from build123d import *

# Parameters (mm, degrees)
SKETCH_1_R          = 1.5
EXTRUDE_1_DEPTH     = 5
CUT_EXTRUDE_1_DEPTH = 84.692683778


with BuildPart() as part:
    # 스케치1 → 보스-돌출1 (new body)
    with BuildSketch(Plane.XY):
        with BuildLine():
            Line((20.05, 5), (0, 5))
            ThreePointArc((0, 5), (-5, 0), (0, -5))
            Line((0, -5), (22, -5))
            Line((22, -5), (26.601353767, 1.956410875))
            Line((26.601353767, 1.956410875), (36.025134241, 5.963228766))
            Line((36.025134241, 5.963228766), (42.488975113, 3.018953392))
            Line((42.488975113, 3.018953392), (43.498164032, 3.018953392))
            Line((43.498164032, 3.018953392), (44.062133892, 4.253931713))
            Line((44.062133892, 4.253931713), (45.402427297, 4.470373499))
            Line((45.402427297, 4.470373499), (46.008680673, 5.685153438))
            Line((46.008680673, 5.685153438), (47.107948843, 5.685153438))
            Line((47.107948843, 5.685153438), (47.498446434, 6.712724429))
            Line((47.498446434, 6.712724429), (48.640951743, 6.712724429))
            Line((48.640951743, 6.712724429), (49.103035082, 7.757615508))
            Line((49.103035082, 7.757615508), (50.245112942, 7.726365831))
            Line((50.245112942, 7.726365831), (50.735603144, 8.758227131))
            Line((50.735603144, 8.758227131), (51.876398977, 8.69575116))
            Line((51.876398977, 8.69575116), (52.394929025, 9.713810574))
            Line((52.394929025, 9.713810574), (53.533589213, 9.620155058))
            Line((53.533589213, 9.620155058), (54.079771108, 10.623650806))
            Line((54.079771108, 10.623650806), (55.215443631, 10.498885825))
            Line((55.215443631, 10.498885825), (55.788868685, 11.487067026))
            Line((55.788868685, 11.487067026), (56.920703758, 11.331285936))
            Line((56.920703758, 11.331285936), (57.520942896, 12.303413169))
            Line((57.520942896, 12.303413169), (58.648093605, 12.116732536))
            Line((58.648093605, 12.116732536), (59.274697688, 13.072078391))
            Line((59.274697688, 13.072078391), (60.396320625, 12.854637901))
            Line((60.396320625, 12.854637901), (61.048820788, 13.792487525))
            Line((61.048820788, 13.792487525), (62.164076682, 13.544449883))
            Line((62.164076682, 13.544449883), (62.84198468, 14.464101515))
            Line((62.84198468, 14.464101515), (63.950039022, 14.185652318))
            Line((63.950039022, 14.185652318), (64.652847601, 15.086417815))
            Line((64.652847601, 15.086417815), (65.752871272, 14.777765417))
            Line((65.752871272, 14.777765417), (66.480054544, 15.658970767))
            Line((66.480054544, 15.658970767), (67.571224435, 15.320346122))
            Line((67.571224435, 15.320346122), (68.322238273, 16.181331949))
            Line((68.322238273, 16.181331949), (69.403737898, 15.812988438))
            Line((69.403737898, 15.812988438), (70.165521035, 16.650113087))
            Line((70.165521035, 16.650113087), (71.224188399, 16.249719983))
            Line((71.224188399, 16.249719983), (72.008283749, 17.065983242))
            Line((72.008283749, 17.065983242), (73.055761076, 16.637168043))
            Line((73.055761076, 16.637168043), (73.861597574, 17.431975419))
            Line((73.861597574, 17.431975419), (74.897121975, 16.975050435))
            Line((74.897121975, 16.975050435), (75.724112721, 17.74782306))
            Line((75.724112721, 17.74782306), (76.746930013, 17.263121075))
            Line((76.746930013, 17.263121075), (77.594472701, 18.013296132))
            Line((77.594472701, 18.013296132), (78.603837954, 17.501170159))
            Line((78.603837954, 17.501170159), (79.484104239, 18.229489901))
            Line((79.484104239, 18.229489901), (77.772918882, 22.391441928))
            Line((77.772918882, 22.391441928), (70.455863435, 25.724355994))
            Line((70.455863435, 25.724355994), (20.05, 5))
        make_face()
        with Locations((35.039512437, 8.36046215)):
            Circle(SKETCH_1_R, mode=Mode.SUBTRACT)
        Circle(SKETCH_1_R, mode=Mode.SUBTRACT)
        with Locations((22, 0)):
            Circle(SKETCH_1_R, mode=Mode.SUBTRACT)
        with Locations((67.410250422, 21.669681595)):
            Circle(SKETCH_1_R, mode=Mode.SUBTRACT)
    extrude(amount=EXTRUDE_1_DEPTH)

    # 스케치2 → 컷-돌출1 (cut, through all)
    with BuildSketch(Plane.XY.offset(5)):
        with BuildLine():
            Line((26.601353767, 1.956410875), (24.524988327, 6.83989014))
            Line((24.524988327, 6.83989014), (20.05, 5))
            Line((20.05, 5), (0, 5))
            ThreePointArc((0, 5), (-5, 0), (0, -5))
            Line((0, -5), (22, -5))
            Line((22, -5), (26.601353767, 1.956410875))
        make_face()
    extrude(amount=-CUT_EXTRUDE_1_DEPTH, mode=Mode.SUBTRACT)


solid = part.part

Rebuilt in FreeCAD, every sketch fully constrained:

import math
import FreeCAD as App
import Part
import Sketcher
Q = App.Units.Quantity

doc = App.newDocument("Part")
body = doc.addObject("PartDesign::Body", "Body")

# Sketch on XY plane
sketch1 = doc.addObject("Sketcher::SketchObject", "Sketch")
body.addObject(sketch1)
sketch1.AttachmentSupport = (doc.XY_Plane, [""])
sketch1.MapMode = "FlatFace"
sketch1.addGeometry(Part.LineSegment(App.Vector(20.05, 5, 0), App.Vector(0, 5, 0)), False)
sketch1.addGeometry(Part.ArcOfCircle(Part.Circle(App.Vector(0, 0, 0), App.Vector(0, 0, 1), 5), math.radians(90), math.radians(270)), False)
sketch1.addGeometry(Part.LineSegment(App.Vector(0, -5, 0), App.Vector(22, -5, 0)), False)
sketch1.addGeometry(Part.LineSegment(App.Vector(22, -5, 0), App.Vector(26.601354, 1.956411, 0)), False)
sketch1.addGeometry(Part.LineSegment(App.Vector(26.601354, 1.956411, 0), App.Vector(36.025134, 5.963229, 0)), False)
sketch1.addGeometry(Part.LineSegment(App.Vector(36.025134, 5.963229, 0), App.Vector(42.488975, 3.018953, 0)), False)
sketch1.addGeometry(Part.LineSegment(App.Vector(42.488975, 3.018953, 0), App.Vector(43.498164, 3.018953, 0)), False)
sketch1.addGeometry(Part.LineSegment(App.Vector(43.498164, 3.018953, 0), App.Vector(44.062134, 4.253932, 0)), False)
sketch1.addGeometry(Part.LineSegment(App.Vector(44.062134, 4.253932, 0), App.Vector(45.402427, 4.470373, 0)), False)
sketch1.addGeometry(Part.LineSegment(App.Vector(45.402427, 4.470373, 0), App.Vector(46.008681, 5.685153, 0)), False)
sketch1.addGeometry(Part.LineSegment(App.Vector(46.008681, 5.685153, 0), App.Vector(47.107949, 5.685153, 0)), False)
sketch1.addGeometry(Part.LineSegment(App.Vector(47.107949, 5.685153, 0), App.Vector(47.498446, 6.712724, 0)), False)
sketch1.addGeometry(Part.LineSegment(App.Vector(47.498446, 6.712724, 0), App.Vector(48.640952, 6.712724, 0)), False)
sketch1.addGeometry(Part.LineSegment(App.Vector(48.640952, 6.712724, 0), App.Vector(49.103035, 7.757616, 0)), False)
sketch1.addGeometry(Part.LineSegment(App.Vector(49.103035, 7.757616, 0), App.Vector(50.245113, 7.726366, 0)), False)
sketch1.addGeometry(Part.LineSegment(App.Vector(50.245113, 7.726366, 0), App.Vector(50.735603, 8.758227, 0)), False)
sketch1.addGeometry(Part.LineSegment(App.Vector(50.735603, 8.758227, 0), App.Vector(51.876399, 8.695751, 0)), False)
sketch1.addGeometry(Part.LineSegment(App.Vector(51.876399, 8.695751, 0), App.Vector(52.394929, 9.713811, 0)), False)
sketch1.addGeometry(Part.LineSegment(App.Vector(52.394929, 9.713811, 0), App.Vector(53.533589, 9.620155, 0)), False)
sketch1.addGeometry(Part.LineSegment(App.Vector(53.533589, 9.620155, 0), App.Vector(54.079771, 10.623651, 0)), False)
sketch1.addGeometry(Part.LineSegment(App.Vector(54.079771, 10.623651, 0), App.Vector(55.215444, 10.498886, 0)), False)
sketch1.addGeometry(Part.LineSegment(App.Vector(55.215444, 10.498886, 0), App.Vector(55.788869, 11.487067, 0)), False)
sketch1.addGeometry(Part.LineSegment(App.Vector(55.788869, 11.487067, 0), App.Vector(56.920704, 11.331286, 0)), False)
sketch1.addGeometry(Part.LineSegment(App.Vector(56.920704, 11.331286, 0), App.Vector(57.520943, 12.303413, 0)), False)
sketch1.addGeometry(Part.LineSegment(App.Vector(57.520943, 12.303413, 0), App.Vector(58.648094, 12.116733, 0)), False)
sketch1.addGeometry(Part.LineSegment(App.Vector(58.648094, 12.116733, 0), App.Vector(59.274698, 13.072078, 0)), False)
sketch1.addGeometry(Part.LineSegment(App.Vector(59.274698, 13.072078, 0), App.Vector(60.396321, 12.854638, 0)), False)
sketch1.addGeometry(Part.LineSegment(App.Vector(60.396321, 12.854638, 0), App.Vector(61.048821, 13.792488, 0)), False)
sketch1.addGeometry(Part.LineSegment(App.Vector(61.048821, 13.792488, 0), App.Vector(62.164077, 13.54445, 0)), False)
sketch1.addGeometry(Part.LineSegment(App.Vector(62.164077, 13.54445, 0), App.Vector(62.841985, 14.464102, 0)), False)
sketch1.addGeometry(Part.LineSegment(App.Vector(62.841985, 14.464102, 0), App.Vector(63.950039, 14.185652, 0)), False)
sketch1.addGeometry(Part.LineSegment(App.Vector(63.950039, 14.185652, 0), App.Vector(64.652848, 15.086418, 0)), False)
sketch1.addGeometry(Part.LineSegment(App.Vector(64.652848, 15.086418, 0), App.Vector(65.752871, 14.777765, 0)), False)
sketch1.addGeometry(Part.LineSegment(App.Vector(65.752871, 14.777765, 0), App.Vector(66.480055, 15.658971, 0)), False)
sketch1.addGeometry(Part.LineSegment(App.Vector(66.480055, 15.658971, 0), App.Vector(67.571224, 15.320346, 0)), False)
sketch1.addGeometry(Part.LineSegment(App.Vector(67.571224, 15.320346, 0), App.Vector(68.322238, 16.181332, 0)), False)
sketch1.addGeometry(Part.LineSegment(App.Vector(68.322238, 16.181332, 0), App.Vector(69.403738, 15.812988, 0)), False)
sketch1.addGeometry(Part.LineSegment(App.Vector(69.403738, 15.812988, 0), App.Vector(70.165521, 16.650113, 0)), False)
sketch1.addGeometry(Part.LineSegment(App.Vector(70.165521, 16.650113, 0), App.Vector(71.224188, 16.24972, 0)), False)
sketch1.addGeometry(Part.LineSegment(App.Vector(71.224188, 16.24972, 0), App.Vector(72.008284, 17.065983, 0)), False)
sketch1.addGeometry(Part.LineSegment(App.Vector(72.008284, 17.065983, 0), App.Vector(73.055761, 16.637168, 0)), False)
sketch1.addGeometry(Part.LineSegment(App.Vector(73.055761, 16.637168, 0), App.Vector(73.861598, 17.431975, 0)), False)
sketch1.addGeometry(Part.LineSegment(App.Vector(73.861598, 17.431975, 0), App.Vector(74.897122, 16.97505, 0)), False)
sketch1.addGeometry(Part.LineSegment(App.Vector(74.897122, 16.97505, 0), App.Vector(75.724113, 17.747823, 0)), False)
sketch1.addGeometry(Part.LineSegment(App.Vector(75.724113, 17.747823, 0), App.Vector(76.74693, 17.263121, 0)), False)
sketch1.addGeometry(Part.LineSegment(App.Vector(76.74693, 17.263121, 0), App.Vector(77.594473, 18.013296, 0)), False)
sketch1.addGeometry(Part.LineSegment(App.Vector(77.594473, 18.013296, 0), App.Vector(78.603838, 17.50117, 0)), False)
sketch1.addGeometry(Part.LineSegment(App.Vector(78.603838, 17.50117, 0), App.Vector(79.484104, 18.22949, 0)), False)
sketch1.addGeometry(Part.LineSegment(App.Vector(79.484104, 18.22949, 0), App.Vector(77.772919, 22.391442, 0)), False)
sketch1.addGeometry(Part.LineSegment(App.Vector(77.772919, 22.391442, 0), App.Vector(70.455863, 25.724356, 0)), False)
sketch1.addGeometry(Part.LineSegment(App.Vector(70.455863, 25.724356, 0), App.Vector(20.05, 5, 0)), False)
sketch1.addGeometry(Part.Circle(App.Vector(0, 0, 0), App.Vector(0, 0, 1), 1.5), False)
sketch1.addGeometry(Part.Circle(App.Vector(22, 0, 0), App.Vector(0, 0, 1), 1.5), False)
sketch1.addGeometry(Part.Circle(App.Vector(35.039512, 8.360462, 0), App.Vector(0, 0, 1), 1.5), False)
sketch1.addGeometry(Part.Circle(App.Vector(67.41025, 21.669682, 0), App.Vector(0, 0, 1), 1.5), False)
sketch1.addConstraint(Sketcher.Constraint("Tangent", 0, 2, 1, 1))
sketch1.addConstraint(Sketcher.Constraint("Tangent", 1, 2, 2, 1))
sketch1.addConstraint(Sketcher.Constraint("Coincident", 2, 2, 3, 1))
sketch1.addConstraint(Sketcher.Constraint("Coincident", 3, 2, 4, 1))
sketch1.addConstraint(Sketcher.Constraint("Coincident", 4, 2, 5, 1))
sketch1.addConstraint(Sketcher.Constraint("Coincident", 5, 2, 6, 1))
sketch1.addConstraint(Sketcher.Constraint("Coincident", 6, 2, 7, 1))
sketch1.addConstraint(Sketcher.Constraint("Coincident", 7, 2, 8, 1))
sketch1.addConstraint(Sketcher.Constraint("Coincident", 8, 2, 9, 1))
sketch1.addConstraint(Sketcher.Constraint("Coincident", 9, 2, 10, 1))
sketch1.addConstraint(Sketcher.Constraint("Coincident", 10, 2, 11, 1))
sketch1.addConstraint(Sketcher.Constraint("Coincident", 11, 2, 12, 1))
sketch1.addConstraint(Sketcher.Constraint("Coincident", 12, 2, 13, 1))
sketch1.addConstraint(Sketcher.Constraint("Coincident", 13, 2, 14, 1))
sketch1.addConstraint(Sketcher.Constraint("Coincident", 14, 2, 15, 1))
sketch1.addConstraint(Sketcher.Constraint("Coincident", 15, 2, 16, 1))
sketch1.addConstraint(Sketcher.Constraint("Coincident", 16, 2, 17, 1))
sketch1.addConstraint(Sketcher.Constraint("Coincident", 17, 2, 18, 1))
sketch1.addConstraint(Sketcher.Constraint("Coincident", 18, 2, 19, 1))
sketch1.addConstraint(Sketcher.Constraint("Coincident", 19, 2, 20, 1))
sketch1.addConstraint(Sketcher.Constraint("Coincident", 20, 2, 21, 1))
sketch1.addConstraint(Sketcher.Constraint("Coincident", 21, 2, 22, 1))
sketch1.addConstraint(Sketcher.Constraint("Coincident", 22, 2, 23, 1))
sketch1.addConstraint(Sketcher.Constraint("Coincident", 23, 2, 24, 1))
sketch1.addConstraint(Sketcher.Constraint("Coincident", 24, 2, 25, 1))
sketch1.addConstraint(Sketcher.Constraint("Coincident", 25, 2, 26, 1))
sketch1.addConstraint(Sketcher.Constraint("Coincident", 26, 2, 27, 1))
sketch1.addConstraint(Sketcher.Constraint("Coincident", 27, 2, 28, 1))
sketch1.addConstraint(Sketcher.Constraint("Coincident", 28, 2, 29, 1))
sketch1.addConstraint(Sketcher.Constraint("Coincident", 29, 2, 30, 1))
sketch1.addConstraint(Sketcher.Constraint("Coincident", 30, 2, 31, 1))
sketch1.addConstraint(Sketcher.Constraint("Coincident", 31, 2, 32, 1))
sketch1.addConstraint(Sketcher.Constraint("Coincident", 32, 2, 33, 1))
sketch1.addConstraint(Sketcher.Constraint("Coincident", 33, 2, 34, 1))
sketch1.addConstraint(Sketcher.Constraint("Coincident", 34, 2, 35, 1))
sketch1.addConstraint(Sketcher.Constraint("Coincident", 35, 2, 36, 1))
sketch1.addConstraint(Sketcher.Constraint("Coincident", 36, 2, 37, 1))
sketch1.addConstraint(Sketcher.Constraint("Coincident", 37, 2, 38, 1))
sketch1.addConstraint(Sketcher.Constraint("Coincident", 38, 2, 39, 1))
sketch1.addConstraint(Sketcher.Constraint("Coincident", 39, 2, 40, 1))
sketch1.addConstraint(Sketcher.Constraint("Coincident", 40, 2, 41, 1))
sketch1.addConstraint(Sketcher.Constraint("Coincident", 41, 2, 42, 1))
sketch1.addConstraint(Sketcher.Constraint("Coincident", 42, 2, 43, 1))
sketch1.addConstraint(Sketcher.Constraint("Coincident", 43, 2, 44, 1))
sketch1.addConstraint(Sketcher.Constraint("Coincident", 44, 2, 45, 1))
sketch1.addConstraint(Sketcher.Constraint("Coincident", 45, 2, 46, 1))
sketch1.addConstraint(Sketcher.Constraint("Coincident", 46, 2, 47, 1))
sketch1.addConstraint(Sketcher.Constraint("Coincident", 47, 2, 48, 1))
sketch1.addConstraint(Sketcher.Constraint("Coincident", 48, 2, 49, 1))
sketch1.addConstraint(Sketcher.Constraint("Coincident", 49, 2, 50, 1))
sketch1.addConstraint(Sketcher.Constraint("Coincident", 50, 2, 0, 1))
sketch1.addConstraint(Sketcher.Constraint("Horizontal", 0))
sketch1.addConstraint(Sketcher.Constraint("Horizontal", 2))
sketch1.addConstraint(Sketcher.Constraint("Horizontal", 6))
sketch1.addConstraint(Sketcher.Constraint("Horizontal", 10))
sketch1.addConstraint(Sketcher.Constraint("Horizontal", 12))
sketch1.addConstraint(Sketcher.Constraint("Coincident", 1, 3, -1, 1))
sketch1.addConstraint(Sketcher.Constraint("Coincident", 51, 3, -1, 1))
sketch1.addConstraint(Sketcher.Constraint("Equal", 51, 52))
sketch1.addConstraint(Sketcher.Constraint("Equal", 52, 53))
sketch1.addConstraint(Sketcher.Constraint("Equal", 53, 54))
sketch1.addConstraint(Sketcher.Constraint("PointOnObject", 52, 3, -1))
sketch1.addConstraint(Sketcher.Constraint("Parallel", 5, 49))
sketch1.addConstraint(Sketcher.Constraint("Perpendicular", 48, 50))
sketch1.addConstraint(Sketcher.Constraint("Vertical", 52, 3, 2, 2))
sketch1.addConstraint(Sketcher.Constraint("Equal", 7, 8))
sketch1.addConstraint(Sketcher.Constraint("Equal", 8, 9))
sketch1.addConstraint(Sketcher.Constraint("Equal", 13, 14))
sketch1.addConstraint(Sketcher.Constraint("Equal", 14, 15))
sketch1.addConstraint(Sketcher.Constraint("Equal", 15, 16))
sketch1.addConstraint(Sketcher.Constraint("Equal", 16, 17))
sketch1.addConstraint(Sketcher.Constraint("Equal", 17, 18))
sketch1.addConstraint(Sketcher.Constraint("Equal", 18, 19))
sketch1.addConstraint(Sketcher.Constraint("Equal", 19, 20))
sketch1.addConstraint(Sketcher.Constraint("Equal", 20, 21))
sketch1.addConstraint(Sketcher.Constraint("Equal", 21, 22))
sketch1.addConstraint(Sketcher.Constraint("Equal", 22, 23))
sketch1.addConstraint(Sketcher.Constraint("Equal", 23, 24))
sketch1.addConstraint(Sketcher.Constraint("Equal", 24, 25))
sketch1.addConstraint(Sketcher.Constraint("Equal", 25, 26))
sketch1.addConstraint(Sketcher.Constraint("Equal", 26, 27))
sketch1.addConstraint(Sketcher.Constraint("Equal", 27, 28))
sketch1.addConstraint(Sketcher.Constraint("Equal", 28, 29))
sketch1.addConstraint(Sketcher.Constraint("Equal", 29, 30))
sketch1.addConstraint(Sketcher.Constraint("Equal", 30, 31))
sketch1.addConstraint(Sketcher.Constraint("Equal", 31, 32))
sketch1.addConstraint(Sketcher.Constraint("Equal", 32, 33))
sketch1.addConstraint(Sketcher.Constraint("Equal", 33, 34))
sketch1.addConstraint(Sketcher.Constraint("Equal", 34, 35))
sketch1.addConstraint(Sketcher.Constraint("Equal", 35, 36))
sketch1.addConstraint(Sketcher.Constraint("Equal", 37, 38))
sketch1.addConstraint(Sketcher.Constraint("Equal", 38, 39))
sketch1.addConstraint(Sketcher.Constraint("Equal", 39, 40))
sketch1.addConstraint(Sketcher.Constraint("Equal", 40, 41))
sketch1.addConstraint(Sketcher.Constraint("Equal", 41, 42))
sketch1.addConstraint(Sketcher.Constraint("Equal", 42, 43))
sketch1.addConstraint(Sketcher.Constraint("Equal", 43, 44))
sketch1.addConstraint(Sketcher.Constraint("Equal", 44, 45))
sketch1.addConstraint(Sketcher.Constraint("Equal", 45, 46))
sketch1.addConstraint(Sketcher.Constraint("Equal", 36, 47))
sketch1.addConstraint(Sketcher.Constraint("Diameter", 51, 3.0))
sketch1.addConstraint(Sketcher.Constraint("Radius", 1, 5.0))
sketch1.addConstraint(Sketcher.Constraint("DistanceX", 2, 1, 2, 2, 22.0))
sketch1.addConstraint(Sketcher.Constraint("Distance", 48, 4.5))
sketch1.addConstraint(Sketcher.Constraint("Distance", 50, 54.5))
sketch1.addConstraint(Sketcher.Constraint("DistanceX", 0, 2, 0, 1, 20.05))
sketch1.addConstraint(Sketcher.Constraint("Angle", 48, Q("112.35 deg")))
sketch1.addConstraint(Sketcher.Constraint("DistanceX", 4, 2, 7, 2, 8.037))
sketch1.addConstraint(Sketcher.Constraint("DistanceX", 6, 1, 6, 2, 1.009189))
sketch1.addConstraint(Sketcher.Constraint("DistanceX", 10, 1, 10, 2, 1.099268))
sketch1.addConstraint(Sketcher.Constraint("DistanceX", -1, 1, 16, 2, 51.876399))
sketch1.addConstraint(Sketcher.Constraint("DistanceY", -1, 1, 29, 2, 14.464102))
sketch1.addConstraint(Sketcher.Constraint("DistanceY", 6, 2, 9, 2, 2.6662))
sketch1.addConstraint(Sketcher.Constraint("DistanceY", 16, 2, 19, 2, 1.9279))
sketch1.addConstraint(Sketcher.Constraint("DistanceY", 20, 2, 22, 2, 0.8324))
sketch1.addConstraint(Sketcher.Constraint("DistanceX", 20, 2, 23, 2, 2.305499))
sketch1.addConstraint(Sketcher.Constraint("DistanceX", 26, 2, 27, 2, 0.6525))
sketch1.addConstraint(Sketcher.Constraint("DistanceY", 22, 2, 27, 2, 2.461202))
sketch1.addConstraint(Sketcher.Constraint("DistanceX", 30, 2, 35, 2, 4.372199))
sketch1.addConstraint(Sketcher.Constraint("DistanceX", 35, 2, 36, 2, 1.0815))
sketch1.addConstraint(Sketcher.Constraint("DistanceX", 37, 2, 42, 2, 4.731601))
sketch1.addConstraint(Sketcher.Constraint("DistanceY", 44, 2, 43, 2, 0.484702))
sketch1.addConstraint(Sketcher.Constraint("Distance", 3, 8.34051))
sketch1.addConstraint(Sketcher.Constraint("Distance", 11, 1.099268))
sketch1.addConstraint(Sketcher.Constraint("DistanceX", 12, 1, 12, 2, 1.142505))
sketch1.addConstraint(Sketcher.Constraint("DistanceX", -1, 1, 54, 3, 67.41025))
sketch1.addConstraint(Sketcher.Constraint("DistanceY", -1, 1, 54, 3, 21.669682))
sketch1.addConstraint(Sketcher.Constraint("DistanceY", -1, 1, 3, 2, 1.956411))
sketch1.addConstraint(Sketcher.Constraint("DistanceY", -1, 1, 4, 2, 5.963229))
sketch1.addConstraint(Sketcher.Constraint("DistanceY", -1, 1, 7, 2, 4.253932))
sketch1.addConstraint(Sketcher.Constraint("DistanceX", -1, 1, 9, 2, 46.008681))
sketch1.addConstraint(Sketcher.Constraint("DistanceX", -1, 1, 12, 2, 48.640952))
sketch1.addConstraint(Sketcher.Constraint("DistanceY", -1, 1, 16, 2, 8.695751))
sketch1.addConstraint(Sketcher.Constraint("DistanceX", -1, 1, 17, 2, 52.394929))
sketch1.addConstraint(Sketcher.Constraint("DistanceY", -1, 1, 17, 2, 9.713811))
sketch1.addConstraint(Sketcher.Constraint("DistanceX", -1, 1, 18, 2, 53.533589))
sketch1.addConstraint(Sketcher.Constraint("DistanceX", -1, 1, 21, 2, 55.788869))
sketch1.addConstraint(Sketcher.Constraint("DistanceY", -1, 1, 25, 2, 13.072078))
sketch1.addConstraint(Sketcher.Constraint("DistanceX", -1, 1, 26, 2, 60.396321))
sketch1.addConstraint(Sketcher.Constraint("DistanceY", -1, 1, 28, 2, 13.54445))
sketch1.addConstraint(Sketcher.Constraint("DistanceX", -1, 1, 30, 2, 63.950039))
sketch1.addConstraint(Sketcher.Constraint("DistanceX", -1, 1, 32, 2, 65.752871))
sketch1.addConstraint(Sketcher.Constraint("DistanceY", -1, 1, 33, 2, 15.658971))
sketch1.addConstraint(Sketcher.Constraint("DistanceY", -1, 1, 35, 2, 16.181332))
sketch1.addConstraint(Sketcher.Constraint("DistanceX", -1, 1, 37, 2, 70.165521))
sketch1.addConstraint(Sketcher.Constraint("DistanceX", -1, 1, 38, 2, 71.224188))
sketch1.addConstraint(Sketcher.Constraint("DistanceY", -1, 1, 38, 2, 16.24972))
sketch1.addConstraint(Sketcher.Constraint("DistanceX", -1, 1, 40, 2, 73.055761))
sketch1.addConstraint(Sketcher.Constraint("DistanceY", -1, 1, 40, 2, 16.637168))
sketch1.addConstraint(Sketcher.Constraint("DistanceY", -1, 1, 42, 2, 16.97505))
sketch1.addConstraint(Sketcher.Constraint("DistanceX", -1, 1, 44, 2, 76.74693))
sketch1.addConstraint(Sketcher.Constraint("DistanceY", -1, 1, 46, 2, 17.50117))
sketch1.addConstraint(Sketcher.Constraint("DistanceY", -1, 1, 47, 2, 18.22949))
sketch1.addConstraint(Sketcher.Constraint("DistanceX", -1, 1, 48, 2, 77.772919))
sketch1.addConstraint(Sketcher.Constraint("DistanceY", 53, 3, 54, 3, 13.309219))
sketch1.addConstraint(Sketcher.Constraint("DistanceX", 3, 2, 53, 3, 8.438159))
sketch1.addConstraint(Sketcher.Constraint("DistanceX", 53, 3, 4, 2, 0.985622))
sketch1.addConstraint(Sketcher.Constraint("DistanceX", 4, 2, 5, 2, 6.463841))
sketch1.addConstraint(Sketcher.Constraint("DistanceY", 12, 2, 13, 2, 1.044891))
sketch1.addConstraint(Sketcher.Constraint("DistanceY", 14, 2, 13, 2, 0.03125))
sketch1.addConstraint(Sketcher.Constraint("DistanceY", 18, 2, 20, 2, 0.878731))
sketch1.addConstraint(Sketcher.Constraint("DistanceX", 30, 2, 31, 2, 0.702809))
pad1 = doc.addObject("PartDesign::Pad", "Pad")
body.addObject(pad1)
pad1.Profile = sketch1
pad1.Length = 5

# Sketch on XY plane
sketch2 = doc.addObject("Sketcher::SketchObject", "Sketch001")
body.addObject(sketch2)
sketch2.AttachmentSupport = (doc.XY_Plane, [""])
sketch2.MapMode = "FlatFace"
sketch2.AttachmentOffset = App.Placement(App.Vector(0, 0, 5), App.Rotation())
sketch2.addGeometry(Part.LineSegment(App.Vector(26.601354, 1.956411, 0), App.Vector(24.524988, 6.83989, 0)), False)
sketch2.addGeometry(Part.LineSegment(App.Vector(24.524988, 6.83989, 0), App.Vector(20.05, 5, 0)), False)
sketch2.addGeometry(Part.LineSegment(App.Vector(20.05, 5, 0), App.Vector(0, 5, 0)), False)
sketch2.addGeometry(Part.ArcOfCircle(Part.Circle(App.Vector(0, 0, 0), App.Vector(0, 0, 1), 5), math.radians(90), math.radians(270)), False)
sketch2.addGeometry(Part.LineSegment(App.Vector(0, -5, 0), App.Vector(22, -5, 0)), False)
sketch2.addGeometry(Part.LineSegment(App.Vector(22, -5, 0), App.Vector(26.601354, 1.956411, 0)), False)
sketch2.addConstraint(Sketcher.Constraint("Coincident", 0, 2, 1, 1))
sketch2.addConstraint(Sketcher.Constraint("Coincident", 1, 2, 2, 1))
sketch2.addConstraint(Sketcher.Constraint("Tangent", 2, 2, 3, 1))
sketch2.addConstraint(Sketcher.Constraint("Tangent", 3, 2, 4, 1))
sketch2.addConstraint(Sketcher.Constraint("Coincident", 4, 2, 5, 1))
sketch2.addConstraint(Sketcher.Constraint("Coincident", 5, 2, 0, 1))
sketch2.addConstraint(Sketcher.Constraint("Horizontal", 2))
sketch2.addConstraint(Sketcher.Constraint("Horizontal", 4))
sketch2.addConstraint(Sketcher.Constraint("Coincident", 3, 3, -1, 1))
sketch2.addConstraint(Sketcher.Constraint("Radius", 3, 5.0))
sketch2.addConstraint(Sketcher.Constraint("DistanceX", 4, 1, 4, 2, 22.0))
sketch2.addConstraint(Sketcher.Constraint("DistanceX", 2, 2, 2, 1, 20.05))
sketch2.addConstraint(Sketcher.Constraint("Angle", 1, Q("-157.65 deg")))
sketch2.addConstraint(Sketcher.Constraint("Distance", 5, 8.34051))
sketch2.addConstraint(Sketcher.Constraint("DistanceX", -1, 1, 0, 2, 24.524988))
sketch2.addConstraint(Sketcher.Constraint("DistanceY", -1, 1, 5, 2, 1.956411))
pocket1 = doc.addObject("PartDesign::Pocket", "Pocket")
body.addObject(pocket1)
pocket1.Profile = sketch2
pocket1.Type = "ThroughAll"

doc.recompute()
